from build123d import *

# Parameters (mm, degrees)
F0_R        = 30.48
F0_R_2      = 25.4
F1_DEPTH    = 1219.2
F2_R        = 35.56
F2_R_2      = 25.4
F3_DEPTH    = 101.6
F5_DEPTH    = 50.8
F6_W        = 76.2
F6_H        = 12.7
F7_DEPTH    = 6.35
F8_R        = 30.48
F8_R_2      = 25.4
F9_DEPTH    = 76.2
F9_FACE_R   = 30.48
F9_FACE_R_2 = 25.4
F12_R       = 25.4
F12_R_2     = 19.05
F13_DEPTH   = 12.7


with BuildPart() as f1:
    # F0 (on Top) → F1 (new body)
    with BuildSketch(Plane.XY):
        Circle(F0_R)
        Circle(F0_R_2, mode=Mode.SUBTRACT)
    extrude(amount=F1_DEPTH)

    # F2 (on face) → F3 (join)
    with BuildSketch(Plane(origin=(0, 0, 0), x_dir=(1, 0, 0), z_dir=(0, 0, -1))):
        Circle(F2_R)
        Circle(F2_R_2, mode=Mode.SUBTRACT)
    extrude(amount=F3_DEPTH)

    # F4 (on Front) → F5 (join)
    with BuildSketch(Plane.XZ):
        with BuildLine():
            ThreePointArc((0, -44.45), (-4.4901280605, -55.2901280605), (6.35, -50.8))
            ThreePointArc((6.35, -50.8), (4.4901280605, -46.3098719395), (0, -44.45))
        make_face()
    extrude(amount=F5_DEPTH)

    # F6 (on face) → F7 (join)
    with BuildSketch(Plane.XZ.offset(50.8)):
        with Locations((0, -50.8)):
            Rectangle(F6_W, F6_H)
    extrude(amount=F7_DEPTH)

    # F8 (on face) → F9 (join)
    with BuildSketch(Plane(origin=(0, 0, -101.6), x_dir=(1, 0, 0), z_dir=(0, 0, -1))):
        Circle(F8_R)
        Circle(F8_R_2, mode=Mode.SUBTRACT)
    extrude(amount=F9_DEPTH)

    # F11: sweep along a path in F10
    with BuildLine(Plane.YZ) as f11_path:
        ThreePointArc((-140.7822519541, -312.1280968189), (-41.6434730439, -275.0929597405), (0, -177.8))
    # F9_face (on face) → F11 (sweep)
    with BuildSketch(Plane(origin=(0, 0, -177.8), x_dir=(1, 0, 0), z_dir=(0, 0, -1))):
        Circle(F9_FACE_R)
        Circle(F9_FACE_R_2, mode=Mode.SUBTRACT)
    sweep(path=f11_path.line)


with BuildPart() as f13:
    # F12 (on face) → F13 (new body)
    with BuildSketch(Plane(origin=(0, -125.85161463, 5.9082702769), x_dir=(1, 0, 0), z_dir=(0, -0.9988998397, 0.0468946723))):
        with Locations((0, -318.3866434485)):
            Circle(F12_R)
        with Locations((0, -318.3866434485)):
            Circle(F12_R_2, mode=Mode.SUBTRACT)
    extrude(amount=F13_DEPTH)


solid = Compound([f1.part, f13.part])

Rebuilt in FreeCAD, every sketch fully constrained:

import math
import FreeCAD as App
import Part
import Sketcher
Q = App.Units.Quantity


def add_polygon(sketch, points):
    """Adds a closed chain of lines whose ends are joined by coincident constraints."""
    first, n = sketch.GeometryCount, len(points)
    for a, b in zip(points, points[1:] + points[:1]):
        sketch.addGeometry(Part.LineSegment(App.Vector(*a, 0), App.Vector(*b, 0)), False)
    for i in range(n):
        sketch.addConstraint(Sketcher.Constraint("Coincident", first + i, 2, first + (i + 1) % n, 1))

doc = App.newDocument("Part")
body = doc.addObject("PartDesign::Body", "Body")

# Sketch on XY plane
sketch1 = doc.addObject("Sketcher::SketchObject", "Sketch")
body.addObject(sketch1)
sketch1.AttachmentSupport = (doc.XY_Plane, [""])
sketch1.MapMode = "FlatFace"
sketch1.addGeometry(Part.Circle(App.Vector(0, 0, 0), App.Vector(0, 0, 1), 30.48), False)
sketch1.addGeometry(Part.Circle(App.Vector(0, 0, 0), App.Vector(0, 0, 1), 25.4), False)
sketch1.addConstraint(Sketcher.Constraint("Coincident", 0, 3, -1, 1))
sketch1.addConstraint(Sketcher.Constraint("Coincident", 1, 3, -1, 1))
sketch1.addConstraint(Sketcher.Constraint("Diameter", 1, Q("2 in")))
sketch1.addConstraint(Sketcher.Constraint("Diameter", 0, Q("2.4 in")))
pad1 = doc.addObject("PartDesign::Pad", "Pad")
body.addObject(pad1)
pad1.Profile = sketch1
pad1.Length = Q("48 in")

# Sketch on XY plane
sketch2 = doc.addObject("Sketcher::SketchObject", "Sketch001")
body.addObject(sketch2)
sketch2.AttachmentSupport = (doc.XY_Plane, [""])
sketch2.MapMode = "FlatFace"
sketch2.addGeometry(Part.Circle(App.Vector(0, 0, 0), App.Vector(0, 0, 1), 35.56), False)
sketch2.addGeometry(Part.Circle(App.Vector(0, 0, 0), App.Vector(0, 0, 1), 25.4), False)
sketch2.addConstraint(Sketcher.Constraint("Coincident", 0, 3, -1, 1))
sketch2.addConstraint(Sketcher.Constraint("Coincident", 1, 3, -1, 1))
sketch2.addConstraint(Sketcher.Constraint("Diameter", 1, Q("2 in")))
sketch2.addConstraint(Sketcher.Constraint("Diameter", 0, Q("2.8 in")))
pad2 = doc.addObject("PartDesign::Pad", "Pad001")
body.addObject(pad2)
pad2.Profile = sketch2
pad2.Length = Q("4 in")
pad2.Reversed = True

# Sketch on XZ plane
sketch3 = doc.addObject("Sketcher::SketchObject", "Sketch002")
body.addObject(sketch3)
sketch3.AttachmentSupport = (doc.XZ_Plane, [""])
sketch3.MapMode = "FlatFace"
sketch3.addGeometry(Part.ArcOfCircle(Part.Circle(App.Vector(0, -50.8, 0), App.Vector(0, 0, 1), 6.35), math.radians(90), math.radians(360)), False)
sketch3.addGeometry(Part.ArcOfCircle(Part.Circle(App.Vector(0, -50.8, 0), App.Vector(0, 0, 1), 6.35), math.radians(0), math.radians(90)), False)
sketch3.addConstraint(Sketcher.Constraint("Tangent", 0, 1, 1, 2))
sketch3.addConstraint(Sketcher.Constraint("Coincident", 1, 1, 0, 2))
sketch3.addConstraint(Sketcher.Constraint("PointOnObject", 0, 3, -2))
sketch3.addConstraint(Sketcher.Constraint("PointOnObject", 0, 1, -2))
sketch3.addConstraint(Sketcher.Constraint("Horizontal", 0, 3, 1, 1))
sketch3.addConstraint(Sketcher.Constraint("Radius", 0, Q("0.25 in")))
sketch3.addConstraint(Sketcher.Constraint("DistanceY", 0, 3, -1, 1, Q("2 in")))
pad3 = doc.addObject("PartDesign::Pad", "Pad002")
body.addObject(pad3)
pad3.Profile = sketch3
pad3.Length = Q("2 in")

# Sketch on XZ plane
sketch4 = doc.addObject("Sketcher::SketchObject", "Sketch003")
body.addObject(sketch4)
sketch4.AttachmentSupport = (doc.XZ_Plane, [""])
sketch4.MapMode = "FlatFace"
sketch4.AttachmentOffset = App.Placement(App.Vector(0, 0, 2 * 25.4), App.Rotation())
add_polygon(sketch4, [(-38.1, -44.45), (-38.1, -57.15), (38.1, -57.15), (38.1, -44.45)])  # lines 0-3
sketch4.addConstraint(Sketcher.Constraint("Vertical", 0))
sketch4.addConstraint(Sketcher.Constraint("Horizontal", 1))
sketch4.addConstraint(Sketcher.Constraint("Vertical", 2))
sketch4.addConstraint(Sketcher.Constraint("Horizontal", 3))
sketch4.addConstraint(Sketcher.Constraint("DistanceX", 1, 1, 1, 2, Q("3 in")))
sketch4.addConstraint(Sketcher.Constraint("DistanceY", 0, 2, 0, 1, Q("0.5 in")))
sketch4.addConstraint(Sketcher.Constraint("DistanceX", 0, 2, -1, 1, Q("1.5 in")))
sketch4.addConstraint(Sketcher.Constraint("DistanceY", 0, 2, -1, 1, Q("2.25 in")))
pad4 = doc.addObject("PartDesign::Pad", "Pad003")
body.addObject(pad4)
pad4.Profile = sketch4
pad4.Length = Q("0.25 in")

# Sketch on XY plane
sketch5 = doc.addObject("Sketcher::SketchObject", "Sketch004")
body.addObject(sketch5)
sketch5.AttachmentSupport = (doc.XY_Plane, [""])
sketch5.MapMode = "FlatFace"
sketch5.AttachmentOffset = App.Placement(App.Vector(0, 0, -4 * 25.4), App.Rotation())
sketch5.addGeometry(Part.Circle(App.Vector(0, 0, 0), App.Vector(0, 0, 1), 30.48), False)
sketch5.addGeometry(Part.Circle(App.Vector(0, 0, 0), App.Vector(0, 0, 1), 25.4), False)
sketch5.addConstraint(Sketcher.Constraint("Coincident", 0, 3, -1, 1))
sketch5.addConstraint(Sketcher.Constraint("Coincident", 1, 3, -1, 1))
sketch5.addConstraint(Sketcher.Constraint("Diameter", 1, Q("2 in")))
sketch5.addConstraint(Sketcher.Constraint("Diameter", 0, Q("2.4 in")))
pad5 = doc.addObject("PartDesign::Pad", "Pad004")
body.addObject(pad5)
pad5.Profile = sketch5
pad5.Length = Q("3 in")
pad5.Reversed = True

# Sketch on XY plane
sketch6 = doc.addObject("Sketcher::SketchObject", "Sketch005")
body.addObject(sketch6)
sketch6.AttachmentSupport = (doc.XY_Plane, [""])
sketch6.MapMode = "FlatFace"
sketch6.AttachmentOffset = App.Placement(App.Vector(0, 0, -7 * 25.4), App.Rotation())
sketch6.addGeometry(Part.Circle(App.Vector(0, 0, 0), App.Vector(0, 0, 1), 30.48), False)
sketch6.addGeometry(Part.Circle(App.Vector(0, 0, 0), App.Vector(0, 0, 1), 25.4), False)
sketch6.addConstraint(Sketcher.Constraint("Coincident", 0, 3, -1, 1))
sketch6.addConstraint(Sketcher.Constraint("Coincident", 1, 3, -1, 1))
sketch6.addConstraint(Sketcher.Constraint("Diameter", 1, Q("2 in")))
sketch6.addConstraint(Sketcher.Constraint("Diameter", 0, Q("2.4 in")))

# Sketch on YZ plane
sketch7 = doc.addObject("Sketcher::SketchObject", "Sketch006")
body.addObject(sketch7)
sketch7.AttachmentSupport = (doc.YZ_Plane, [""])
sketch7.MapMode = "FlatFace"
sketch7.addGeometry(Part.ArcOfCircle(Part.Circle(App.Vector(-134.476042, -177.8, 0), App.Vector(0, 0, 1), 134.476042), math.radians(-92.687853), math.radians(0)), False)
sketch7.addConstraint(Sketcher.Constraint("PointOnObject", 0, 2, -2))
sketch7.addConstraint(Sketcher.Constraint("DistanceY", 0, 3, -1, 1, Q("7 in")))
sketch7.addConstraint(Sketcher.Constraint("DistanceY", 0, 2, -1, 1, Q("7 in")))
sketch7.addConstraint(Sketcher.Constraint("Radius", 0, Q("134.476042 mm")))
sketch7.addConstraint(Sketcher.Constraint("DistanceX", 0, 1, -1, 1, Q("140.782252 mm")))
doc.recompute()

additivepipe = doc.addObject("PartDesign::AdditivePipe", "AdditivePipe")
body.addObject(additivepipe)
additivepipe.Profile = sketch6
additivepipe.Spine = (sketch7, ["Edge1"])
body2 = doc.addObject("PartDesign::Body", "Body001")

# Sketch on an angled plane
sketch8 = doc.addObject("Sketcher::SketchObject", "Sketch007")
body2.addObject(sketch8)
sketch8.Placement = App.Placement(App.Vector(0, -125.851615, 5.90827), App.Rotation(App.Vector(1, 0, 0), App.Vector(0, 0.046894672, 0.99889984), App.Vector(0, -0.99889984, 0.046894672), "ZXY"))
sketch8.addGeometry(Part.Circle(App.Vector(0, -318.386644, 0), App.Vector(0, 0, 1), 25.4), False)
sketch8.addGeometry(Part.Circle(App.Vector(0, -318.386644, 0), App.Vector(0, 0, 1), 19.05), False)
sketch8.addConstraint(Sketcher.Constraint("Coincident", 1, 3, 0, 3))
sketch8.addConstraint(Sketcher.Constraint("PointOnObject", 0, 3, -2))
sketch8.addConstraint(Sketcher.Constraint("Diameter", 0, Q("2 in")))
sketch8.addConstraint(Sketcher.Constraint("Diameter", 1, Q("1.5 in")))
sketch8.addConstraint(Sketcher.Constraint("DistanceY", 0, 3, -1, 1, Q("318.386644 mm")))
pad6 = doc.addObject("PartDesign::Pad", "Pad005")
body2.addObject(pad6)
pad6.Profile = sketch8
pad6.Length = Q("0.5 in")

doc.recompute()
